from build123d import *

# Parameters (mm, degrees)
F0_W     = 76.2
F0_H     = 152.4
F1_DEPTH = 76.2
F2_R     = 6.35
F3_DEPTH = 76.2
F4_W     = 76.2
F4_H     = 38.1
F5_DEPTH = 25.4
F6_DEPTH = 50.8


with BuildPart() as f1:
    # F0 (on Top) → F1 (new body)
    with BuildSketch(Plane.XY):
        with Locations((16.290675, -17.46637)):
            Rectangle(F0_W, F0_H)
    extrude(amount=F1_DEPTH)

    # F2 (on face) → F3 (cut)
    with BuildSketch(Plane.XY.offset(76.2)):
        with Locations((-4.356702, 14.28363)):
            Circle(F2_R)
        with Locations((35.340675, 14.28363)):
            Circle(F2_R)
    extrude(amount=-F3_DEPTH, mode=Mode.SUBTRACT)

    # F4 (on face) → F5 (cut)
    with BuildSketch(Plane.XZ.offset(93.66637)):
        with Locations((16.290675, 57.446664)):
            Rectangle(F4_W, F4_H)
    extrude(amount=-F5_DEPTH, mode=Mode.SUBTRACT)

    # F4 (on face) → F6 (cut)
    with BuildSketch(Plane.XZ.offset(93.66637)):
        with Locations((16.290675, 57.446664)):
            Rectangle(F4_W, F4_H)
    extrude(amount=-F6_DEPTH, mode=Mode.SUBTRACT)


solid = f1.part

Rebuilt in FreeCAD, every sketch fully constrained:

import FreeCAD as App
import Part
import Sketcher
from FreeCAD import Vector
Q = App.Units.Quantity


def add_polygon(sketch, points):
    """Adds a closed chain of lines whose ends are joined by coincident constraints."""
    first, n = sketch.GeometryCount, len(points)
    for a, b in zip(points, points[1:] + points[:1]):
        sketch.addGeometry(Part.LineSegment(App.Vector(*a, 0), App.Vector(*b, 0)), False)
    for i in range(n):
        sketch.addConstraint(Sketcher.Constraint("Coincident", first + i, 2, first + (i + 1) % n, 1))

doc = App.newDocument("Part")
body = doc.addObject("PartDesign::Body", "Body")

# Sketch on XY plane
sketch1 = body.newObject("Sketcher::SketchObject", "Sketch")
sketch1.AttachmentSupport = (doc.getObject("XY_Plane"), [""])
sketch1.MapMode = "FlatFace"
add_polygon(sketch1, [(-21.809325, 58.73363), (-21.809325, -93.66637), (54.390675, -93.66637), (54.390675, 58.73363)])  # lines 0-3
sketch1.addConstraint(Sketcher.Constraint("Vertical", 0))
sketch1.addConstraint(Sketcher.Constraint("Horizontal", 1))
sketch1.addConstraint(Sketcher.Constraint("Vertical", 2))
sketch1.addConstraint(Sketcher.Constraint("Horizontal", 3))
sketch1.addConstraint(Sketcher.Constraint("DistanceX", 1, 1, 1, 2, Q("3 in")))
sketch1.addConstraint(Sketcher.Constraint("DistanceY", 0, 2, 0, 1, Q("6 in")))
sketch1.addConstraint(Sketcher.Constraint("DistanceY", 0, 2, -1, 1, 93.66637))
sketch1.addConstraint(Sketcher.Constraint("DistanceX", 0, 2, -1, 1, 21.809325))
pad1 = body.newObject("PartDesign::Pad", "Pad")
pad1.Profile = sketch1
pad1.Length = Q("3 in")

# Sketch on XY plane
sketch2 = body.newObject("Sketcher::SketchObject", "Sketch001")
sketch2.AttachmentSupport = (doc.getObject("XY_Plane"), [""])
sketch2.MapMode = "FlatFace"
sketch2.AttachmentOffset = App.Placement(Vector(0, 0, 3 * 25.4), App.Rotation())
sketch2.addGeometry(Part.Circle(Vector(-4.356702, 14.28363, 0), Vector(0, 0, 1), 6.35), False)
sketch2.addGeometry(Part.Circle(Vector(35.340675, 14.28363, 0), Vector(0, 0, 1), 6.35), False)
sketch2.addConstraint(Sketcher.Constraint("Equal", 0, 1))
sketch2.addConstraint(Sketcher.Constraint("Horizontal", 0, 3, 1, 3))
sketch2.addConstraint(Sketcher.Constraint("Diameter", 0, Q("0.5 in")))
sketch2.addConstraint(Sketcher.Constraint("DistanceY", -1, 1, 0, 3, 14.28363))
sketch2.addConstraint(Sketcher.Constraint("DistanceX", 0, 3, -1, 1, 4.356702))
sketch2.addConstraint(Sketcher.Constraint("DistanceX", -1, 1, 1, 3, 35.340675))
pocket1 = body.newObject("PartDesign::Pocket", "Pocket")
pocket1.Profile = sketch2
pocket1.Length = Q("3 in")

# Sketch on XZ plane
sketch3 = body.newObject("Sketcher::SketchObject", "Sketch002")
sketch3.AttachmentSupport = (doc.getObject("XZ_Plane"), [""])
sketch3.MapMode = "FlatFace"
sketch3.AttachmentOffset = App.Placement(Vector(0, 0, 93.66637), App.Rotation())
add_polygon(sketch3, [(-21.809325, 76.496664), (-21.809325, 38.396664), (54.390675, 38.396664), (54.390675, 76.496664)])  # lines 0-3
sketch3.addConstraint(Sketcher.Constraint("Vertical", 0))
sketch3.addConstraint(Sketcher.Constraint("Horizontal", 1))
sketch3.addConstraint(Sketcher.Constraint("Vertical", 2))
sketch3.addConstraint(Sketcher.Constraint("Horizontal", 3))
sketch3.addConstraint(Sketcher.Constraint("DistanceX", 1, 1, 1, 2, Q("3 in")))
sketch3.addConstraint(Sketcher.Constraint("DistanceY", 0, 2, 0, 1, Q("1.5 in")))
sketch3.addConstraint(Sketcher.Constraint("DistanceX", 0, 2, -1, 1, 21.809325))
sketch3.addConstraint(Sketcher.Constraint("DistanceY", -1, 1, 0, 2, 38.396664))
pocket2 = body.newObject("PartDesign::Pocket", "Pocket001")
pocket2.Profile = sketch3
pocket2.Length = Q("1 in")

# Sketch on XZ plane
sketch4 = body.newObject("Sketcher::SketchObject", "Sketch003")
sketch4.AttachmentSupport = (doc.getObject("XZ_Plane"), [""])
sketch4.MapMode = "FlatFace"
sketch4.AttachmentOffset = App.Placement(Vector(0, 0, 93.66637), App.Rotation())
add_polygon(sketch4, [(-21.809325, 76.496664), (-21.809325, 38.396664), (54.390675, 38.396664), (54.390675, 76.496664)])  # lines 0-3
sketch4.addConstraint(Sketcher.Constraint("Vertical", 0))
sketch4.addConstraint(Sketcher.Constraint("Horizontal", 1))
sketch4.addConstraint(Sketcher.Constraint("Vertical", 2))
sketch4.addConstraint(Sketcher.Constraint("Horizontal", 3))
sketch4.addConstraint(Sketcher.Constraint("DistanceX", 1, 1, 1, 2, Q("3 in")))
sketch4.addConstraint(Sketcher.Constraint("DistanceY", 0, 2, 0, 1, Q("1.5 in")))
sketch4.addConstraint(Sketcher.Constraint("DistanceX", 0, 2, -1, 1, 21.809325))
sketch4.addConstraint(Sketcher.Constraint("DistanceY", -1, 1, 0, 2, 38.396664))
pocket3 = body.newObject("PartDesign::Pocket", "Pocket002")
pocket3.Profile = sketch4
pocket3.Length = Q("2 in")

doc.recompute()
